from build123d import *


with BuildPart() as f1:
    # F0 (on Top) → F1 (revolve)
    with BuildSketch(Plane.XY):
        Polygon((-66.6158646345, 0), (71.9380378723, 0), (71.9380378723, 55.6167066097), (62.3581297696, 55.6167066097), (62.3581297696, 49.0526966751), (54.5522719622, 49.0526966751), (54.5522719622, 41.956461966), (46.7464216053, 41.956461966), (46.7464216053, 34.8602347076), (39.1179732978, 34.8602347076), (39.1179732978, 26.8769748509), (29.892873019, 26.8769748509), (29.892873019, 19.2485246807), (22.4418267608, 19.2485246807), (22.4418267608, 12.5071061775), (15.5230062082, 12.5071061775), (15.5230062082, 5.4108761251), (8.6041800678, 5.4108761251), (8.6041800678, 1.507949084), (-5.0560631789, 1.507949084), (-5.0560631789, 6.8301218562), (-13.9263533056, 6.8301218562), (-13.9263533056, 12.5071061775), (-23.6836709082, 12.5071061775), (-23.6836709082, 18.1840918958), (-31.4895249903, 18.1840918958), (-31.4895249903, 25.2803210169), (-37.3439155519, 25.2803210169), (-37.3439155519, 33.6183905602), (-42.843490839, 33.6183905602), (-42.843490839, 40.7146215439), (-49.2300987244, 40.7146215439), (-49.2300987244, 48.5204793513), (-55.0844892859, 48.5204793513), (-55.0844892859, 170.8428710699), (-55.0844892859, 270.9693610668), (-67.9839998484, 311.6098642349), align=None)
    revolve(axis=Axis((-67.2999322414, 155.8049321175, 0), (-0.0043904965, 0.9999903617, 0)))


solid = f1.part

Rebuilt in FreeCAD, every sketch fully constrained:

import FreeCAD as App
import Part
import Sketcher
from FreeCAD import Vector
Q = App.Units.Quantity

doc = App.newDocument("Part")
params = doc.addObject("Spreadsheet::Sheet", "Params")
for row, (alias, value) in enumerate([
    ("revolution_angle", "360 deg"),
], start=1):
    params.set(f"A{row}", alias)
    params.set(f"B{row}", "=" + value)
    params.setAlias(f"B{row}", alias)

body = doc.addObject("PartDesign::Body", "Body")

# Sketch on XY plane
sketch1 = body.newObject("Sketcher::SketchObject", "Sketch")
sketch1.AttachmentSupport = (doc.getObject("XY_Plane"), [""])
sketch1.MapMode = "FlatFace"
sketch1.addGeometry([
    Part.LineSegment(Vector(-66.6, 0, 0), Vector(71.9, 0, 0)),  # 0
    Part.LineSegment(Vector(71.9, 0, 0), Vector(71.9, 55.6, 0)),  # 1
    Part.LineSegment(Vector(71.9, 55.6, 0), Vector(62.4, 55.6, 0)),  # 2
    Part.LineSegment(Vector(62.4, 55.6, 0), Vector(62.4, 49.1, 0)),  # 3
    Part.LineSegment(Vector(62.4, 49.1, 0), Vector(54.6, 49.1, 0)),  # 4
    Part.LineSegment(Vector(54.6, 49.1, 0), Vector(54.6, 42, 0)),  # 5
    Part.LineSegment(Vector(54.6, 42, 0), Vector(46.7, 42, 0)),  # 6
    Part.LineSegment(Vector(46.7, 42, 0), Vector(46.7, 34.9, 0)),  # 7
    Part.LineSegment(Vector(46.7, 34.9, 0), Vector(39.1, 34.9, 0)),  # 8
    Part.LineSegment(Vector(39.1, 34.9, 0), Vector(39.1, 26.9, 0)),  # 9
    Part.LineSegment(Vector(39.1, 26.9, 0), Vector(29.9, 26.9, 0)),  # 10
    Part.LineSegment(Vector(29.9, 26.9, 0), Vector(29.9, 19.2, 0)),  # 11
    Part.LineSegment(Vector(29.9, 19.2, 0), Vector(22.4, 19.2, 0)),  # 12
    Part.LineSegment(Vector(22.4, 19.2, 0), Vector(22.4, 12.5, 0)),  # 13
    Part.LineSegment(Vector(22.4, 12.5, 0), Vector(15.5, 12.5, 0)),  # 14
    Part.LineSegment(Vector(15.5, 12.5, 0), Vector(15.5, 5.4, 0)),  # 15
    Part.LineSegment(Vector(15.5, 5.4, 0), Vector(8.6, 5.4, 0)),  # 16
    Part.LineSegment(Vector(8.6, 5.4, 0), Vector(8.6, 1.5, 0)),  # 17
    Part.LineSegment(Vector(8.6, 1.5, 0), Vector(-5.1, 1.5, 0)),  # 18
    Part.LineSegment(Vector(-5.1, 1.5, 0), Vector(-5.1, 6.8, 0)),  # 19
    Part.LineSegment(Vector(-5.1, 6.8, 0), Vector(-13.9, 6.8, 0)),  # 20
    Part.LineSegment(Vector(-13.9, 6.8, 0), Vector(-13.9, 12.5, 0)),  # 21
    Part.LineSegment(Vector(-13.9, 12.5, 0), Vector(-23.7, 12.5, 0)),  # 22
    Part.LineSegment(Vector(-23.7, 12.5, 0), Vector(-23.7, 18.2, 0)),  # 23
    Part.LineSegment(Vector(-23.7, 18.2, 0), Vector(-31.5, 18.2, 0)),  # 24
    Part.LineSegment(Vector(-31.5, 18.2, 0), Vector(-31.5, 25.3, 0)),  # 25
    Part.LineSegment(Vector(-31.5, 25.3, 0), Vector(-37.3, 25.3, 0)),  # 26
    Part.LineSegment(Vector(-37.3, 25.3, 0), Vector(-37.3, 33.6, 0)),  # 27
    Part.LineSegment(Vector(-37.3, 33.6, 0), Vector(-42.8, 33.6, 0)),  # 28
    Part.LineSegment(Vector(-42.8, 33.6, 0), Vector(-42.8, 40.7, 0)),  # 29
    Part.LineSegment(Vector(-42.8, 40.7, 0), Vector(-49.2, 40.7, 0)),  # 30
    Part.LineSegment(Vector(-49.2, 40.7, 0), Vector(-49.2, 48.5, 0)),  # 31
    Part.LineSegment(Vector(-49.2, 48.5, 0), Vector(-55.1, 48.5, 0)),  # 32
    Part.LineSegment(Vector(-55.1, 48.5, 0), Vector(-55.1, 271, 0)),  # 33
    Part.LineSegment(Vector(-55.1, 271, 0), Vector(-68, 311.6, 0)),  # 34
    Part.LineSegment(Vector(-68, 311.6, 0), Vector(-66.6, 0, 0)),  # 35
], False)
sketch1.addGeometry(Part.LineSegment(Vector(-66.6, -0.6, 0), Vector(-68, 311.6, 0)), True)  # axis
sketch1.addConstraint([
    Sketcher.Constraint("Coincident", 0, 2, 1, 1),
    Sketcher.Constraint("Coincident", 1, 2, 2, 1),
    Sketcher.Constraint("Coincident", 2, 2, 3, 1),
    Sketcher.Constraint("Coincident", 3, 2, 4, 1),
    Sketcher.Constraint("Coincident", 4, 2, 5, 1),
    Sketcher.Constraint("Coincident", 5, 2, 6, 1),
    Sketcher.Constraint("Coincident", 6, 2, 7, 1),
    Sketcher.Constraint("Coincident", 7, 2, 8, 1),
    Sketcher.Constraint("Coincident", 8, 2, 9, 1),
    Sketcher.Constraint("Coincident", 9, 2, 10, 1),
    Sketcher.Constraint("Coincident", 10, 2, 11, 1),
    Sketcher.Constraint("Coincident", 11, 2, 12, 1),
    Sketcher.Constraint("Coincident", 12, 2, 13, 1),
    Sketcher.Constraint("Coincident", 13, 2, 14, 1),
    Sketcher.Constraint("Coincident", 14, 2, 15, 1),
    Sketcher.Constraint("Coincident", 15, 2, 16, 1),
    Sketcher.Constraint("Coincident", 16, 2, 17, 1),
    Sketcher.Constraint("Coincident", 17, 2, 18, 1),
    Sketcher.Constraint("Coincident", 18, 2, 19, 1),
    Sketcher.Constraint("Coincident", 19, 2, 20, 1),
    Sketcher.Constraint("Coincident", 20, 2, 21, 1),
    Sketcher.Constraint("Coincident", 21, 2, 22, 1),
    Sketcher.Constraint("Coincident", 22, 2, 23, 1),
    Sketcher.Constraint("Coincident", 23, 2, 24, 1),
    Sketcher.Constraint("Coincident", 24, 2, 25, 1),
    Sketcher.Constraint("Coincident", 25, 2, 26, 1),
    Sketcher.Constraint("Coincident", 26, 2, 27, 1),
    Sketcher.Constraint("Coincident", 27, 2, 28, 1),
    Sketcher.Constraint("Coincident", 28, 2, 29, 1),
    Sketcher.Constraint("Coincident", 29, 2, 30, 1),
    Sketcher.Constraint("Coincident", 30, 2, 31, 1),
    Sketcher.Constraint("Coincident", 31, 2, 32, 1),
    Sketcher.Constraint("Coincident", 32, 2, 33, 1),
    Sketcher.Constraint("Coincident", 33, 2, 34, 1),
    Sketcher.Constraint("Coincident", 34, 2, 35, 1),
    Sketcher.Constraint("Coincident", 35, 2, 0, 1),
    Sketcher.Constraint("Horizontal", 0),
    Sketcher.Constraint("Vertical", 1),
    Sketcher.Constraint("Horizontal", 2),
    Sketcher.Constraint("Vertical", 3),
    Sketcher.Constraint("Horizontal", 4),
    Sketcher.Constraint("Vertical", 5),
    Sketcher.Constraint("Horizontal", 6),
    Sketcher.Constraint("Vertical", 7),
    Sketcher.Constraint("Horizontal", 8),
    Sketcher.Constraint("Vertical", 9),
    Sketcher.Constraint("Horizontal", 10),
    Sketcher.Constraint("Vertical", 11),
    Sketcher.Constraint("Horizontal", 12),
    Sketcher.Constraint("Vertical", 13),
    Sketcher.Constraint("Horizontal", 14),
    Sketcher.Constraint("Vertical", 15),
    Sketcher.Constraint("Horizontal", 16),
    Sketcher.Constraint("Vertical", 17),
    Sketcher.Constraint("Horizontal", 18),
    Sketcher.Constraint("Vertical", 19),
    Sketcher.Constraint("Horizontal", 20),
    Sketcher.Constraint("Vertical", 21),
    Sketcher.Constraint("Horizontal", 22),
    Sketcher.Constraint("Vertical", 23),
    Sketcher.Constraint("Horizontal", 24),
    Sketcher.Constraint("Vertical", 25),
    Sketcher.Constraint("Horizontal", 26),
    Sketcher.Constraint("Vertical", 27),
    Sketcher.Constraint("Horizontal", 28),
    Sketcher.Constraint("Vertical", 29),
    Sketcher.Constraint("Horizontal", 30),
    Sketcher.Constraint("Vertical", 31),
    Sketcher.Constraint("Horizontal", 32),
    Sketcher.Constraint("Vertical", 33),
    Sketcher.Constraint("Coincident", 36, 2, 34, 2),
    Sketcher.Constraint("PointOnObject", 0, 2, -1),
    Sketcher.Constraint("Parallel", 35, 36),
    Sketcher.Constraint("Horizontal", 14, 2, 21, 2),
    Sketcher.Constraint("Equal", 26, 32),
    Sketcher.Constraint("Equal", 8, 11),
    Sketcher.Constraint("Equal", 21, 23),
    Sketcher.Constraint("Equal", 15, 25),
    Sketcher.Constraint("Equal", 25, 29),
    Sketcher.Constraint("Equal", 4, 31),
    Sketcher.Constraint("DistanceX", 10, 2, 10, 1, Q("9.2251 mm")),
    Sketcher.Constraint("DistanceX", 34, 2, -1, 1, Q("67.984 mm")),
    Sketcher.Constraint("DistanceX", 32, 2, 29, 2, Q("12.240998 mm")),
    Sketcher.Constraint("DistanceX", 2, 2, 2, 1, Q("9.579908 mm")),
    Sketcher.Constraint("DistanceX", 6, 2, 6, 1, Q("7.80585 mm")),
    Sketcher.Constraint("DistanceX", 8, 2, 8, 1, Q("7.628448 mm")),
    Sketcher.Constraint("DistanceX", 14, 2, 14, 1, Q("6.918821 mm")),
    Sketcher.Constraint("DistanceX", 20, 2, 20, 1, Q("8.87029 mm")),
    Sketcher.Constraint("DistanceX", 26, 2, 26, 1, Q("5.854391 mm")),
    Sketcher.Constraint("DistanceY", 3, 2, 3, 1, Q("6.56401 mm")),
    Sketcher.Constraint("DistanceY", 9, 2, 9, 1, Q("7.98326 mm")),
    Sketcher.Constraint("DistanceY", 13, 2, 13, 1, Q("6.741419 mm")),
    Sketcher.Constraint("DistanceY", 15, 2, 15, 1, Q("7.09623 mm")),
    Sketcher.Constraint("DistanceY", 27, 1, 27, 2, Q("8.33807 mm")),
    Sketcher.Constraint("DistanceY", 33, 1, 33, 2, Q("222.448882 mm")),
    Sketcher.Constraint("DistanceX", 30, 2, -1, 1, Q("49.230099 mm")),
    Sketcher.Constraint("DistanceY", 20, 2, 25, 2, Q("18.450199 mm")),
    Sketcher.Constraint("Distance", 36, Q("312.221188 mm")),
    Sketcher.Constraint("DistanceX", 0, 1, 0, 2, Q("138.553903 mm")),
    Sketcher.Constraint("DistanceX", 4, 2, 4, 1, Q("7.805858 mm")),
    Sketcher.Constraint("DistanceX", 12, 2, 12, 1, Q("7.451046 mm")),
    Sketcher.Constraint("DistanceX", 16, 2, 16, 1, Q("6.918826 mm")),
    Sketcher.Constraint("DistanceX", 18, 2, 18, 1, Q("13.660243 mm")),
    Sketcher.Constraint("DistanceX", 22, 2, 22, 1, Q("9.757318 mm")),
    Sketcher.Constraint("DistanceX", 24, 2, 24, 1, Q("7.805854 mm")),
    Sketcher.Constraint("DistanceX", 28, 2, 28, 1, Q("5.499575 mm")),
    Sketcher.Constraint("DistanceY", 1, 1, 1, 2, Q("55.616707 mm")),
    Sketcher.Constraint("DistanceY", 5, 2, 5, 1, Q("7.096235 mm")),
    Sketcher.Constraint("DistanceY", 7, 2, 7, 1, Q("7.096227 mm")),
    Sketcher.Constraint("DistanceY", 17, 2, 17, 1, Q("3.902927 mm")),
    Sketcher.Constraint("Distance", 34, Q("42.638573 mm")),
])
revolution = body.newObject("PartDesign::Revolution", "Revolution")
revolution.Profile = sketch1
revolution.ReferenceAxis = (sketch1, ["Axis0"])
revolution.setExpression("Angle", "Params.revolution_angle")

doc.recompute()
